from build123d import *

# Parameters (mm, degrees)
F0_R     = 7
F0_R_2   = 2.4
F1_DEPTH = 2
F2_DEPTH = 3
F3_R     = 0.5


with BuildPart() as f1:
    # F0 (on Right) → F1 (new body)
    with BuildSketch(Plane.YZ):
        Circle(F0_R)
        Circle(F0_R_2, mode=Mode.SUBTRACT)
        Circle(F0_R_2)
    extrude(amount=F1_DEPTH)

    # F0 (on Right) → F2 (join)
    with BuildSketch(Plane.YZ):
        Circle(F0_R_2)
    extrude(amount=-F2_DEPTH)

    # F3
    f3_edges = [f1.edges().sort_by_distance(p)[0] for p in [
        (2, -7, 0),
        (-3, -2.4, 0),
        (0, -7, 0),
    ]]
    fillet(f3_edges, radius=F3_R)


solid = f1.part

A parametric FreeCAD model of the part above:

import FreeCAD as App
import Part
import Sketcher
Q = App.Units.Quantity


def edges_at(feature, points):
    """Names of the edges that pass closest to the given points."""
    edges = feature.Shape.Edges
    near = lambda p: min(range(len(edges)), key=lambda i: edges[i].distToShape(Part.Vertex(*p))[0])
    return sorted({f"Edge{near(p) + 1}" for p in points})

doc = App.newDocument("Part")
params = doc.addObject("Spreadsheet::Sheet", "Params")
for row, (alias, value) in enumerate([
    ("sketch1_diameter", "14 mm"),
    ("pad1_length", "2 mm"),
    ("sketch2_diameter", "4.8 mm"),
    ("pad2_length", "3 mm"),
    ("fillet_radius", "0.5 mm"),
], start=1):
    params.set(f"A{row}", alias)
    params.set(f"B{row}", "=" + value)
    params.setAlias(f"B{row}", alias)

body = doc.addObject("PartDesign::Body", "Body")

sketch1 = body.newObject("Sketcher::SketchObject", "Sketch")
sketch1.AttachmentSupport = (doc.getObject("YZ_Plane"), [""])
sketch1.MapMode = "FlatFace"
sketch1.addGeometry(Part.Circle(App.Vector(0, 0, 0), App.Vector(0, 0, 1), 7), False)
sketch1.addConstraint([
    Sketcher.Constraint("Coincident", 0, 3, -1, 1),
    Sketcher.Constraint("Diameter", 0, Q("14 mm")),
])
sketch1.setExpression("Constraints[1]", "Params.sketch1_diameter")
pad1 = body.newObject("PartDesign::Pad", "Pad")
pad1.Profile = sketch1
pad1.setExpression("Length", "Params.pad1_length")

sketch2 = body.newObject("Sketcher::SketchObject", "Sketch001")
sketch2.AttachmentSupport = (doc.getObject("YZ_Plane"), [""])
sketch2.MapMode = "FlatFace"
sketch2.addGeometry(Part.Circle(App.Vector(0, 0, 0), App.Vector(0, 0, 1), 2.4), False)
sketch2.addConstraint([
    Sketcher.Constraint("Coincident", 0, 3, -1, 1),
    Sketcher.Constraint("Diameter", 0, Q("4.8 mm")),
])
sketch2.setExpression("Constraints[1]", "Params.sketch2_diameter")
pad2 = body.newObject("PartDesign::Pad", "Pad001")
pad2.Profile = sketch2
pad2.setExpression("Length", "Params.pad2_length")
pad2.Reversed = True
doc.recompute()

fillet = body.newObject("PartDesign::Fillet", "Fillet")
fillet.Base = (pad2, edges_at(pad2, [(2, -7, 0), (-3, -2.4, 0), (0, -7, 0)]))
fillet.setExpression("Radius", "Params.fillet_radius")

doc.recompute()
